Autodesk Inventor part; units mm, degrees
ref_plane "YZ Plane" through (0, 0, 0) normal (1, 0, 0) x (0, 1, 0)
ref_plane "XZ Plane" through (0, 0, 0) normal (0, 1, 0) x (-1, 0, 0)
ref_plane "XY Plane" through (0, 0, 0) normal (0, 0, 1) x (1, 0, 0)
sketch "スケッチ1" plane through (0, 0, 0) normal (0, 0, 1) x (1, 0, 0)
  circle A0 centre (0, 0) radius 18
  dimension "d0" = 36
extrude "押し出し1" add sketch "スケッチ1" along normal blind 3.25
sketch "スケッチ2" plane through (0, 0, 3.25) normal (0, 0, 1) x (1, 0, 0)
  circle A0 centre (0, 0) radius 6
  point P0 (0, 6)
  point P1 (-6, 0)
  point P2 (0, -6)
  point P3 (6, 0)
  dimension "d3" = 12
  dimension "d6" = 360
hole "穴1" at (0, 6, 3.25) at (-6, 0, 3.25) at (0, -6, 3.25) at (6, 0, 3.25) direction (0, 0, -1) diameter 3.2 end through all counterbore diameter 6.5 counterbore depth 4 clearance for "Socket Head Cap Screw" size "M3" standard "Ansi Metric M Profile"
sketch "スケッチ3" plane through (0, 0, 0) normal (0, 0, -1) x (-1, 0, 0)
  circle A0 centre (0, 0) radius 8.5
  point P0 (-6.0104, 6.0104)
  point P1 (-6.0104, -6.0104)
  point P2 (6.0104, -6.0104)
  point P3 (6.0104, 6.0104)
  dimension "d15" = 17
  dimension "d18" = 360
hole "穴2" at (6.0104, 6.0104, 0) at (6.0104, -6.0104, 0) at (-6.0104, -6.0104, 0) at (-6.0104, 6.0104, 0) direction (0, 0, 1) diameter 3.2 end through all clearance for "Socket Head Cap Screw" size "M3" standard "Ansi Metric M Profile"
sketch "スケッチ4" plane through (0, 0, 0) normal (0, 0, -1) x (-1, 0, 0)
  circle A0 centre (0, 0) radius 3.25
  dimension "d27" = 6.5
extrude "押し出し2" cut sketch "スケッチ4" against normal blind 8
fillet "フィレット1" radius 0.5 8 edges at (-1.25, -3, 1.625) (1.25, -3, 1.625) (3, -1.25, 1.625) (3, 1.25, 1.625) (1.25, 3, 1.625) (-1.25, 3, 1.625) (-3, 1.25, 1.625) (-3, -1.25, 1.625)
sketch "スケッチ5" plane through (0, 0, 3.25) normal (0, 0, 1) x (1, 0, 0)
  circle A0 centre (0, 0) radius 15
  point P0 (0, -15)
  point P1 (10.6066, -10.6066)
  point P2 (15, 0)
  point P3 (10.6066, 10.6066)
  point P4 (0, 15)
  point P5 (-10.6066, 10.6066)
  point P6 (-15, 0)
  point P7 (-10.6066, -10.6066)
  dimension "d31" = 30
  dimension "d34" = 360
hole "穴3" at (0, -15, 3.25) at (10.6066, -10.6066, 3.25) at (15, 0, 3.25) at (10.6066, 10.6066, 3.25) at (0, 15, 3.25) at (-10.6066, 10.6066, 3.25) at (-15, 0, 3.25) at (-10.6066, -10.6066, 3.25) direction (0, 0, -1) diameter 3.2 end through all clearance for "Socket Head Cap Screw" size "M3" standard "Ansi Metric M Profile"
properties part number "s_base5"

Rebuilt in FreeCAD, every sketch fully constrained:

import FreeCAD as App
import Part
import Sketcher


def edges_at(feature, points):
    """Names of the edges that pass closest to the given points."""
    edges = feature.Shape.Edges
    near = lambda p: min(range(len(edges)), key=lambda i: edges[i].distToShape(Part.Vertex(*p))[0])
    return sorted({f"Edge{near(p) + 1}" for p in points})

doc = App.newDocument("Part")
body = doc.addObject("PartDesign::Body", "Body")

# Sketch on XY plane
sketch1 = body.newObject("Sketcher::SketchObject", "Sketch")
sketch1.AttachmentSupport = (doc.getObject("XY_Plane"), [""])
sketch1.MapMode = "FlatFace"
sketch1.addGeometry(Part.Circle(App.Vector(0, 0, 0), App.Vector(0, 0, 1), 18), False)
sketch1.addConstraint(Sketcher.Constraint("Coincident", 0, 3, -1, 1))
sketch1.addConstraint(Sketcher.Constraint("Diameter", 0, 36.0))
pad1 = body.newObject("PartDesign::Pad", "Pad")
pad1.Profile = sketch1
pad1.Length = 3.25

# Sketch on XY plane
sketch2 = body.newObject("Sketcher::SketchObject", "Sketch001")
sketch2.AttachmentSupport = (doc.getObject("XY_Plane"), [""])
sketch2.MapMode = "FlatFace"
sketch2.AttachmentOffset = App.Placement(App.Vector(0, 0, 3.25), App.Rotation())
sketch2.addGeometry(Part.Circle(App.Vector(0, 6, 0), App.Vector(0, 0, 1), 1.6), False)
sketch2.addGeometry(Part.Circle(App.Vector(-6, 0, 0), App.Vector(0, 0, 1), 1.6), False)
sketch2.addGeometry(Part.Circle(App.Vector(0, -6, 0), App.Vector(0, 0, 1), 1.6), False)
sketch2.addGeometry(Part.Circle(App.Vector(6, 0, 0), App.Vector(0, 0, 1), 1.6), False)
sketch2.addConstraint(Sketcher.Constraint("Equal", 0, 1))
sketch2.addConstraint(Sketcher.Constraint("Equal", 1, 2))
sketch2.addConstraint(Sketcher.Constraint("Equal", 2, 3))
sketch2.addConstraint(Sketcher.Constraint("Symmetric", 0, 3, 2, 3, -1, 1))
sketch2.addConstraint(Sketcher.Constraint("Symmetric", 1, 3, 3, 3, -1, 1))
sketch2.addConstraint(Sketcher.Constraint("PointOnObject", 0, 3, -2))
sketch2.addConstraint(Sketcher.Constraint("PointOnObject", 1, 3, -1))
sketch2.addConstraint(Sketcher.Constraint("Diameter", 0, 3.2))
sketch2.addConstraint(Sketcher.Constraint("DistanceY", -1, 1, 0, 3, 6.0))
sketch2.addConstraint(Sketcher.Constraint("DistanceX", 1, 3, -1, 1, 6.0))
doc.recompute()
hole = body.newObject("PartDesign::Hole", "Hole")
hole.Profile = sketch2
hole.ThreadType = "None"
hole.Diameter = 3.2
hole.DepthType = "ThroughAll"
hole.HoleCutType = "Counterbore"
hole.HoleCutDiameter = 6.5
hole.HoleCutDepth = 4

# Sketch on XY plane
sketch3 = body.newObject("Sketcher::SketchObject", "Sketch002")
sketch3.AttachmentSupport = (doc.getObject("XY_Plane"), [""])
sketch3.MapMode = "FlatFace"
sketch3.addGeometry(Part.Circle(App.Vector(6, 6, 0), App.Vector(0, 0, 1), 1.6), False)
sketch3.addGeometry(Part.Circle(App.Vector(6, -6, 0), App.Vector(0, 0, 1), 1.6), False)
sketch3.addGeometry(Part.Circle(App.Vector(-6, -6, 0), App.Vector(0, 0, 1), 1.6), False)
sketch3.addGeometry(Part.Circle(App.Vector(-6, 6, 0), App.Vector(0, 0, 1), 1.6), False)
sketch3.addConstraint(Sketcher.Constraint("Equal", 0, 1))
sketch3.addConstraint(Sketcher.Constraint("Equal", 1, 2))
sketch3.addConstraint(Sketcher.Constraint("Equal", 2, 3))
sketch3.addConstraint(Sketcher.Constraint("Symmetric", 0, 3, 2, 3, -1, 1))
sketch3.addConstraint(Sketcher.Constraint("Symmetric", 1, 3, 3, 3, -1, 1))
sketch3.addConstraint(Sketcher.Constraint("Symmetric", 1, 3, 2, 3, -2))
sketch3.addConstraint(Sketcher.Constraint("Diameter", 0, 3.2))
sketch3.addConstraint(Sketcher.Constraint("DistanceX", -1, 1, 0, 3, 6.0104))
sketch3.addConstraint(Sketcher.Constraint("DistanceY", -1, 1, 0, 3, 6.0104))
doc.recompute()
hole2 = body.newObject("PartDesign::Hole", "Hole001")
hole2.Profile = sketch3
hole2.ThreadType = "None"
hole2.Diameter = 3.2
hole2.DepthType = "ThroughAll"
hole2.Reversed = True

# Sketch on XY plane
sketch4 = body.newObject("Sketcher::SketchObject", "Sketch003")
sketch4.AttachmentSupport = (doc.getObject("XY_Plane"), [""])
sketch4.MapMode = "FlatFace"
sketch4.addGeometry(Part.Circle(App.Vector(0, 0, 0), App.Vector(0, 0, 1), 3.2), False)
sketch4.addConstraint(Sketcher.Constraint("Coincident", 0, 3, -1, 1))
sketch4.addConstraint(Sketcher.Constraint("Diameter", 0, 6.5))
pocket1 = body.newObject("PartDesign::Pocket", "Pocket")
pocket1.Profile = sketch4
pocket1.Length = 8
pocket1.Reversed = True
doc.recompute()

fillet = body.newObject("PartDesign::Fillet", "Fillet")
fillet.Base = (pocket1, edges_at(pocket1, [
    (-1.25, -3, 1.625),
    (1.25, -3, 1.625),
    (3, -1.25, 1.625),
    (3, 1.25, 1.625),
    (1.25, 3, 1.625),
    (-1.25, 3, 1.625),
    (-3, 1.25, 1.625),
    (-3, -1.25, 1.625),
]))
fillet.Radius = 0.5

# Sketch on XY plane
sketch5 = body.newObject("Sketcher::SketchObject", "Sketch004")
sketch5.AttachmentSupport = (doc.getObject("XY_Plane"), [""])
sketch5.MapMode = "FlatFace"
sketch5.AttachmentOffset = App.Placement(App.Vector(0, 0, 3.25), App.Rotation())
sketch5.addGeometry(Part.Circle(App.Vector(0, -15, 0), App.Vector(0, 0, 1), 1.6), False)
sketch5.addGeometry(Part.Circle(App.Vector(10.6, -10.6, 0), App.Vector(0, 0, 1), 1.6), False)
sketch5.addGeometry(Part.Circle(App.Vector(15, 0, 0), App.Vector(0, 0, 1), 1.6), False)
sketch5.addGeometry(Part.Circle(App.Vector(10.6, 10.6, 0), App.Vector(0, 0, 1), 1.6), False)
sketch5.addGeometry(Part.Circle(App.Vector(0, 15, 0), App.Vector(0, 0, 1), 1.6), False)
sketch5.addGeometry(Part.Circle(App.Vector(-10.6, 10.6, 0), App.Vector(0, 0, 1), 1.6), False)
sketch5.addGeometry(Part.Circle(App.Vector(-15, 0, 0), App.Vector(0, 0, 1), 1.6), False)
sketch5.addGeometry(Part.Circle(App.Vector(-10.6, -10.6, 0), App.Vector(0, 0, 1), 1.6), False)
sketch5.addConstraint(Sketcher.Constraint("Equal", 0, 1))
sketch5.addConstraint(Sketcher.Constraint("Equal", 1, 2))
sketch5.addConstraint(Sketcher.Constraint("Equal", 2, 3))
sketch5.addConstraint(Sketcher.Constraint("Equal", 3, 4))
sketch5.addConstraint(Sketcher.Constraint("Equal", 4, 5))
sketch5.addConstraint(Sketcher.Constraint("Equal", 5, 6))
sketch5.addConstraint(Sketcher.Constraint("Equal", 6, 7))
sketch5.addConstraint(Sketcher.Constraint("Symmetric", 0, 3, 4, 3, -1, 1))
sketch5.addConstraint(Sketcher.Constraint("Symmetric", 1, 3, 5, 3, -1, 1))
sketch5.addConstraint(Sketcher.Constraint("Symmetric", 2, 3, 6, 3, -1, 1))
sketch5.addConstraint(Sketcher.Constraint("Symmetric", 3, 3, 7, 3, -1, 1))
sketch5.addConstraint(Sketcher.Constraint("Symmetric", 3, 3, 5, 3, -2))
sketch5.addConstraint(Sketcher.Constraint("PointOnObject", 0, 3, -2))
sketch5.addConstraint(Sketcher.Constraint("PointOnObject", 2, 3, -1))
sketch5.addConstraint(Sketcher.Constraint("Diameter", 0, 3.2))
sketch5.addConstraint(Sketcher.Constraint("DistanceY", 0, 3, -1, 1, 15.0))
sketch5.addConstraint(Sketcher.Constraint("DistanceX", -1, 1, 2, 3, 15.0))
sketch5.addConstraint(Sketcher.Constraint("DistanceX", -1, 1, 1, 3, 10.6066))
sketch5.addConstraint(Sketcher.Constraint("DistanceY", 1, 3, -1, 1, 10.6066))
doc.recompute()
hole3 = body.newObject("PartDesign::Hole", "Hole002")
hole3.Profile = sketch5
hole3.ThreadType = "None"
hole3.Diameter = 3.2
hole3.DepthType = "ThroughAll"

doc.recompute()
